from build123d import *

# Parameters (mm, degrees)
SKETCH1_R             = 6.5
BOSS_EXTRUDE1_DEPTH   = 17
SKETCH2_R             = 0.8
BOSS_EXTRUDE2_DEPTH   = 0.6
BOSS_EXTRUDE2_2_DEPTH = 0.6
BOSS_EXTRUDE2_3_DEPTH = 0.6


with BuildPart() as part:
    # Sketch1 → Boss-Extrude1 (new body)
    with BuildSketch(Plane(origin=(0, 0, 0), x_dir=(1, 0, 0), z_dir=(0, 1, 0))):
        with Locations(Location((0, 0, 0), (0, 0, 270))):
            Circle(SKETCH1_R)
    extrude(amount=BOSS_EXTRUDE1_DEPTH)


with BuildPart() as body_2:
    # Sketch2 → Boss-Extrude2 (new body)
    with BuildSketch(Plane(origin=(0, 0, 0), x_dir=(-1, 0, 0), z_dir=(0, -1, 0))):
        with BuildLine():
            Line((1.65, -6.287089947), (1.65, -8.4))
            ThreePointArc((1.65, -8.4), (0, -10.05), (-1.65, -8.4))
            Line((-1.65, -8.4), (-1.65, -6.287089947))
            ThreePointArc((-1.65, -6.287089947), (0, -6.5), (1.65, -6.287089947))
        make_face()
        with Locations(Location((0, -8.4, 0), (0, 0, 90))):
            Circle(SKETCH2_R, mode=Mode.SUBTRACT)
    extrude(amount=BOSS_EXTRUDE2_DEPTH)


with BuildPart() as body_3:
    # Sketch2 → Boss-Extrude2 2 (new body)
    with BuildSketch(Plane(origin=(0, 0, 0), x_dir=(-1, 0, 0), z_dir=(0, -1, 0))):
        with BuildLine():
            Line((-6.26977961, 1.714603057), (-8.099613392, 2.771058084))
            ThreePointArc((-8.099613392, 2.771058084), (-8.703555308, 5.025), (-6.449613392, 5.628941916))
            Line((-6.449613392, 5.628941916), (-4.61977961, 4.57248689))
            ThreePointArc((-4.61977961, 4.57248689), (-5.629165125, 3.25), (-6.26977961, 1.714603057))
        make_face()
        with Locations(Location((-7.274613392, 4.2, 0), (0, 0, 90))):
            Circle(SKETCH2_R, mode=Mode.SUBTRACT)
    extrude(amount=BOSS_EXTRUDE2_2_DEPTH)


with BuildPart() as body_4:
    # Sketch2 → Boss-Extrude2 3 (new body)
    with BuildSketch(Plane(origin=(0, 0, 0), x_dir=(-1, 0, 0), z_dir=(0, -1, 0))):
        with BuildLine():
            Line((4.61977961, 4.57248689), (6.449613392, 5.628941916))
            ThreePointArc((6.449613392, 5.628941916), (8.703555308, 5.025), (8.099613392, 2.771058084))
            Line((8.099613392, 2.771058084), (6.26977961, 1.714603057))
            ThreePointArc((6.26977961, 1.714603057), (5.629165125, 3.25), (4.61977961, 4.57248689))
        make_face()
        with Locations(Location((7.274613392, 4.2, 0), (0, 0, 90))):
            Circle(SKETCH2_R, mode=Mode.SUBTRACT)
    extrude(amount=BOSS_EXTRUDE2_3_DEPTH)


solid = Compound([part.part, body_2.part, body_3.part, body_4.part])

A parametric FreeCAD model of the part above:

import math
import FreeCAD as App
import Part
import Sketcher
from FreeCAD import Vector
Q = App.Units.Quantity

doc = App.newDocument("Part")
params = doc.addObject("Spreadsheet::Sheet", "Params")
for row, (alias, value) in enumerate([
    ("sketch1_diameter", "13 mm"),
    ("pad1_length", "17 mm"),
    ("sketch2_diameter", "1.6 mm"),
    ("sketch2_radius", "6.5 mm"),
    ("sketch2_radius2", "1.65 mm"),
    ("pad2_length", "0.6 mm"),
    ("sketch3_diameter", "1.6 mm"),
    ("sketch3_radius", "6.5 mm"),
    ("sketch3_radius2", "1.65 mm"),
    ("pad3_length", "0.6 mm"),
    ("sketch4_diameter", "1.6 mm"),
    ("sketch4_radius", "6.5 mm"),
    ("sketch4_radius2", "1.65 mm"),
    ("pad4_length", "0.6 mm"),
], start=1):
    params.set(f"A{row}", alias)
    params.set(f"B{row}", "=" + value)
    params.setAlias(f"B{row}", alias)

body = doc.addObject("PartDesign::Body", "Body")

# Sketch on XZ plane
sketch1 = doc.addObject("Sketcher::SketchObject", "Sketch")
body.addObject(sketch1)
sketch1.AttachmentSupport = (doc.XZ_Plane, [""])
sketch1.MapMode = "FlatFace"
sketch1.addGeometry(Part.Circle(Vector(0, 0, 0), Vector(0, 0, 1), 6), False)
sketch1.addConstraint([
    Sketcher.Constraint("Coincident", 0, 3, -1, 1),
    Sketcher.Constraint("Diameter", 0, 13.0),
])
sketch1.setExpression("Constraints[1]", "Params.sketch1_diameter")
pad1 = doc.addObject("PartDesign::Pad", "Pad")
body.addObject(pad1)
pad1.Profile = sketch1
pad1.setExpression("Length", "Params.pad1_length")
pad1.Reversed = True
body2 = doc.addObject("PartDesign::Body", "Body001")

# Sketch on XZ plane
sketch2 = doc.addObject("Sketcher::SketchObject", "Sketch001")
body2.addObject(sketch2)
sketch2.AttachmentSupport = (doc.getObject("XZ_Plane001"), [""])
sketch2.MapMode = "FlatFace"
sketch2.addGeometry([
    Part.LineSegment(Vector(-1.6, 8.4, 0), Vector(-1.6, 6.3, 0)),  # 0
    Part.ArcOfCircle(Part.Circle(Vector(0, 0, 0), Vector(0, 0, 1), 6.5), math.radians(75), math.radians(105)),  # 1
    Part.LineSegment(Vector(1.6, 6.3, 0), Vector(1.6, 8.4, 0)),  # 2
    Part.ArcOfCircle(Part.Circle(Vector(0, 8.4, 0), Vector(0, 0, 1), 1.6), math.radians(0), math.radians(180)),  # 3
    Part.Circle(Vector(0, 8.4, 0), Vector(0, 0, 1), 0.8),  # 4
], False)
sketch2.addConstraint([
    Sketcher.Constraint("Coincident", 0, 2, 1, 2),
    Sketcher.Constraint("Coincident", 1, 1, 2, 1),
    Sketcher.Constraint("Tangent", 2, 2, 3, 1),
    Sketcher.Constraint("Tangent", 3, 2, 0, 1),
    Sketcher.Constraint("Vertical", 0),
    Sketcher.Constraint("Vertical", 2),
    Sketcher.Constraint("Coincident", 1, 3, -1, 1),
    Sketcher.Constraint("Coincident", 4, 3, 3, 3),
    Sketcher.Constraint("PointOnObject", 3, 3, -2),
    Sketcher.Constraint("Diameter", 4, 1.6),
    Sketcher.Constraint("Radius", 1, 6.5),
    Sketcher.Constraint("Radius", 3, 1.65),
    Sketcher.Constraint("DistanceY", -1, 1, 3, 3, 8.4),
])
sketch2.setExpression("Constraints[9]", "Params.sketch2_diameter")
sketch2.setExpression("Constraints[10]", "Params.sketch2_radius")
sketch2.setExpression("Constraints[11]", "Params.sketch2_radius2")
pad2 = doc.addObject("PartDesign::Pad", "Pad001")
body2.addObject(pad2)
pad2.Profile = sketch2
pad2.setExpression("Length", "Params.pad2_length")
body3 = doc.addObject("PartDesign::Body", "Body002")

# Sketch on XZ plane
sketch3 = doc.addObject("Sketcher::SketchObject", "Sketch002")
body3.addObject(sketch3)
sketch3.AttachmentSupport = (doc.getObject("XZ_Plane002"), [""])
sketch3.MapMode = "FlatFace"
sketch3.addGeometry([
    Part.LineSegment(Vector(8.1, -2.8, 0), Vector(6.3, -1.7, 0)),  # 0
    Part.ArcOfCircle(Part.Circle(Vector(0, 0, 0), Vector(0, 0, 1), 6.5), math.radians(-45), math.radians(-15)),  # 1
    Part.LineSegment(Vector(4.6, -4.6, 0), Vector(6.4, -5.6, 0)),  # 2
    Part.ArcOfCircle(Part.Circle(Vector(7.3, -4.2, 0), Vector(0, 0, 1), 1.6), math.radians(-120), math.radians(60)),  # 3
    Part.Circle(Vector(7.3, -4.2, 0), Vector(0, 0, 1), 0.8),  # 4
], False)
sketch3.addConstraint([
    Sketcher.Constraint("Coincident", 0, 2, 1, 2),
    Sketcher.Constraint("Coincident", 1, 1, 2, 1),
    Sketcher.Constraint("Tangent", 2, 2, 3, 1),
    Sketcher.Constraint("Tangent", 3, 2, 0, 1),
    Sketcher.Constraint("Coincident", 1, 3, -1, 1),
    Sketcher.Constraint("Coincident", 4, 3, 3, 3),
    Sketcher.Constraint("Parallel", 0, 2),
    Sketcher.Constraint("Equal", 0, 2),
    Sketcher.Constraint("Diameter", 4, 1.6),
    Sketcher.Constraint("Radius", 1, 6.5),
    Sketcher.Constraint("Angle", 0, Q("150 deg")),
    Sketcher.Constraint("Radius", 3, 1.65),
    Sketcher.Constraint("DistanceY", 3, 3, -1, 1, 4.2),
])
sketch3.setExpression("Constraints[8]", "Params.sketch3_diameter")
sketch3.setExpression("Constraints[9]", "Params.sketch3_radius")
sketch3.setExpression("Constraints[11]", "Params.sketch3_radius2")
pad3 = doc.addObject("PartDesign::Pad", "Pad002")
body3.addObject(pad3)
pad3.Profile = sketch3
pad3.setExpression("Length", "Params.pad3_length")
body4 = doc.addObject("PartDesign::Body", "Body003")

# Sketch on XZ plane
sketch4 = doc.addObject("Sketcher::SketchObject", "Sketch003")
body4.addObject(sketch4)
sketch4.AttachmentSupport = (doc.getObject("XZ_Plane003"), [""])
sketch4.MapMode = "FlatFace"
sketch4.addGeometry([
    Part.LineSegment(Vector(-6.4, -5.6, 0), Vector(-4.6, -4.6, 0)),  # 0
    Part.ArcOfCircle(Part.Circle(Vector(0, 0, 0), Vector(0, 0, 1), 6.5), math.radians(-165), math.radians(-135)),  # 1
    Part.LineSegment(Vector(-6.3, -1.7, 0), Vector(-8.1, -2.8, 0)),  # 2
    Part.ArcOfCircle(Part.Circle(Vector(-7.3, -4.2, 0), Vector(0, 0, 1), 1.6), math.radians(120), math.radians(300)),  # 3
    Part.Circle(Vector(-7.3, -4.2, 0), Vector(0, 0, 1), 0.8),  # 4
], False)
sketch4.addConstraint([
    Sketcher.Constraint("Coincident", 0, 2, 1, 2),
    Sketcher.Constraint("Coincident", 1, 1, 2, 1),
    Sketcher.Constraint("Tangent", 2, 2, 3, 1),
    Sketcher.Constraint("Tangent", 3, 2, 0, 1),
    Sketcher.Constraint("Coincident", 1, 3, -1, 1),
    Sketcher.Constraint("Coincident", 4, 3, 3, 3),
    Sketcher.Constraint("Parallel", 0, 2),
    Sketcher.Constraint("Equal", 0, 2),
    Sketcher.Constraint("Diameter", 4, 1.6),
    Sketcher.Constraint("Radius", 1, 6.5),
    Sketcher.Constraint("Angle", 0, Q("30 deg")),
    Sketcher.Constraint("Radius", 3, 1.65),
    Sketcher.Constraint("DistanceY", 3, 3, -1, 1, 4.2),
])
sketch4.setExpression("Constraints[8]", "Params.sketch4_diameter")
sketch4.setExpression("Constraints[9]", "Params.sketch4_radius")
sketch4.setExpression("Constraints[11]", "Params.sketch4_radius2")
pad4 = doc.addObject("PartDesign::Pad", "Pad003")
body4.addObject(pad4)
pad4.Profile = sketch4
pad4.setExpression("Length", "Params.pad4_length")

doc.recompute()
